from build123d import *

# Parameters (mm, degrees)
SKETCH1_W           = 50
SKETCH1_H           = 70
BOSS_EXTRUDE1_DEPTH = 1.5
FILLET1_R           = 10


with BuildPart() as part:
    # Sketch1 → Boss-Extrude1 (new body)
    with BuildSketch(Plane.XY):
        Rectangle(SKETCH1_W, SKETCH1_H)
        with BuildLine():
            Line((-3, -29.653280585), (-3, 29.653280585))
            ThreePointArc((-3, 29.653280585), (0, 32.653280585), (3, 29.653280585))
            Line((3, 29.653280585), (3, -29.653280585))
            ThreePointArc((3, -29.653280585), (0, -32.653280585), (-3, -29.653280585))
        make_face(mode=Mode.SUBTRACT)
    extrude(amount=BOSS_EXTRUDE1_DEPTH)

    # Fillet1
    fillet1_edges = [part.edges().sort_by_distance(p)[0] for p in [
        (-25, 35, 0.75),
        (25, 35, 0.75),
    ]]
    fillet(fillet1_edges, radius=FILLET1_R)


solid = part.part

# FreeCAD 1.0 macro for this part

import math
import FreeCAD as App
import Part
import Sketcher
from FreeCAD import Vector


def edges_at(feature, points):
    """Names of the edges that pass closest to the given points."""
    edges = feature.Shape.Edges
    near = lambda p: min(range(len(edges)), key=lambda i: edges[i].distToShape(Part.Vertex(*p))[0])
    return sorted({f"Edge{near(p) + 1}" for p in points})

doc = App.newDocument("Part")
body = doc.addObject("PartDesign::Body", "Body")

# Sketch on XY plane
sketch1 = body.newObject("Sketcher::SketchObject", "Sketch")
sketch1.AttachmentSupport = (doc.getObject("XY_Plane"), [""])
sketch1.MapMode = "FlatFace"
sketch1.addGeometry([
    Part.LineSegment(Vector(-25, 35, 0), Vector(-25, -35, 0)),  # 0
    Part.LineSegment(Vector(-25, -35, 0), Vector(25, -35, 0)),  # 1
    Part.LineSegment(Vector(25, -35, 0), Vector(25, 35, 0)),  # 2
    Part.LineSegment(Vector(25, 35, 0), Vector(-25, 35, 0)),  # 3
    Part.ArcOfCircle(Part.Circle(Vector(0, -29.7, 0), Vector(0, 0, 1), 3), math.radians(180), math.radians(360)),  # 4
    Part.LineSegment(Vector(-3, -29.7, 0), Vector(-3, 29.7, 0)),  # 5
    Part.ArcOfCircle(Part.Circle(Vector(0, 29.7, 0), Vector(0, 0, 1), 3), math.radians(0), math.radians(180)),  # 6
    Part.LineSegment(Vector(3, 29.7, 0), Vector(3, -29.7, 0)),  # 7
], False)
sketch1.addConstraint([
    Sketcher.Constraint("Coincident", 0, 2, 1, 1),
    Sketcher.Constraint("Coincident", 1, 2, 2, 1),
    Sketcher.Constraint("Coincident", 2, 2, 3, 1),
    Sketcher.Constraint("Coincident", 3, 2, 0, 1),
    Sketcher.Constraint("Tangent", 4, 1, 5, 1),
    Sketcher.Constraint("Tangent", 5, 2, 6, 2),
    Sketcher.Constraint("Tangent", 6, 1, 7, 1),
    Sketcher.Constraint("Tangent", 7, 2, 4, 2),
    Sketcher.Constraint("Vertical", 0),
    Sketcher.Constraint("Horizontal", 1),
    Sketcher.Constraint("Vertical", 2),
    Sketcher.Constraint("Horizontal", 3),
    Sketcher.Constraint("Vertical", 5),
    Sketcher.Constraint("Vertical", 7),
    Sketcher.Constraint("Symmetric", 4, 3, 6, 3, -1, 1),
    Sketcher.Constraint("Symmetric", 0, 2, 2, 2, -1, 1),
    Sketcher.Constraint("Radius", 4, 3.0),
    Sketcher.Constraint("DistanceX", 1, 1, 1, 2, 50.0),
    Sketcher.Constraint("DistanceY", 0, 2, 0, 1, 70.0),
    Sketcher.Constraint("DistanceY", 5, 1, 5, 2, 59.306561),
])
pad1 = body.newObject("PartDesign::Pad", "Pad")
pad1.Profile = sketch1
pad1.Length = 1.5
doc.recompute()

fillet = body.newObject("PartDesign::Fillet", "Fillet")
fillet.Base = (pad1, edges_at(pad1, [(-25, 35, 0.75), (25, 35, 0.75)]))
fillet.Radius = 10

doc.recompute()
